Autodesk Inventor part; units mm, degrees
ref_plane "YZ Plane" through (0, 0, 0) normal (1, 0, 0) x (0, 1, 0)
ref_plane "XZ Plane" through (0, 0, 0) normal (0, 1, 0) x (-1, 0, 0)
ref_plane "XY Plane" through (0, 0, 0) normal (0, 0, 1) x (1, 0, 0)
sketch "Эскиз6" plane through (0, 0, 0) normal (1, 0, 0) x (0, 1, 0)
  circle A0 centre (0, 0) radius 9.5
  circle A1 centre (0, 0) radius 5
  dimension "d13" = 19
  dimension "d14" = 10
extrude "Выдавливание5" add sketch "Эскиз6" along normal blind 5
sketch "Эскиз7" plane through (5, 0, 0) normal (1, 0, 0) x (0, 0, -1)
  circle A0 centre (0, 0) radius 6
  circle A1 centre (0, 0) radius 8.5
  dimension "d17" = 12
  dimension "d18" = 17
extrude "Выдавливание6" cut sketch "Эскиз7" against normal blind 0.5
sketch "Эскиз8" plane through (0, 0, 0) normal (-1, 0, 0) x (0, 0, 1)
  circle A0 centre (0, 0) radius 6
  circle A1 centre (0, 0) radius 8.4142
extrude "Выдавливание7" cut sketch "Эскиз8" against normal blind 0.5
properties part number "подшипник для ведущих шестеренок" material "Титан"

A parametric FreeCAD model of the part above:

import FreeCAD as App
import Part
import Sketcher

V = App.Vector

doc = App.newDocument("Part")
body = doc.addObject("PartDesign::Body", "Body")

# Sketch on YZ plane
sketch1 = doc.addObject("Sketcher::SketchObject", "Sketch")
body.addObject(sketch1)
sketch1.AttachmentSupport = (doc.YZ_Plane, [""])
sketch1.MapMode = "FlatFace"
sketch1.addGeometry([
    Part.Circle(V(0, 0, 0), V(0, 0, 1), 10),
    Part.Circle(V(0, 0, 0), V(0, 0, 1), 5),
], False)
sketch1.addConstraint([
    Sketcher.Constraint("Coincident", 0, 3, -1, 1),
    Sketcher.Constraint("Coincident", 1, 3, -1, 1),
    Sketcher.Constraint("Diameter", 0, 19.0),
    Sketcher.Constraint("Diameter", 1, 10.0),
])
pad1 = doc.addObject("PartDesign::Pad", "Pad")
body.addObject(pad1)
pad1.Profile = sketch1
pad1.Length = 5

# Sketch on YZ plane
sketch2 = doc.addObject("Sketcher::SketchObject", "Sketch001")
body.addObject(sketch2)
sketch2.AttachmentSupport = (doc.YZ_Plane, [""])
sketch2.MapMode = "FlatFace"
sketch2.AttachmentOffset = App.Placement(V(0, 0, 5), App.Rotation())
sketch2.addGeometry([
    Part.Circle(V(0, 0, 0), V(0, 0, 1), 8),
    Part.Circle(V(0, 0, 0), V(0, 0, 1), 6),
], False)
sketch2.addConstraint([
    Sketcher.Constraint("Coincident", 0, 3, -1, 1),
    Sketcher.Constraint("Coincident", 1, 3, -1, 1),
    Sketcher.Constraint("Diameter", 0, 17.0),
    Sketcher.Constraint("Diameter", 1, 12.0),
])
pocket1 = doc.addObject("PartDesign::Pocket", "Pocket")
body.addObject(pocket1)
pocket1.Profile = sketch2
pocket1.Length = 0.5

# Sketch on YZ plane
sketch3 = doc.addObject("Sketcher::SketchObject", "Sketch002")
body.addObject(sketch3)
sketch3.AttachmentSupport = (doc.YZ_Plane, [""])
sketch3.MapMode = "FlatFace"
sketch3.addGeometry([
    Part.Circle(V(0, 0, 0), V(0, 0, 1), 8),
    Part.Circle(V(0, 0, 0), V(0, 0, 1), 6),
], False)
sketch3.addConstraint([
    Sketcher.Constraint("Coincident", 0, 3, -1, 1),
    Sketcher.Constraint("Coincident", 1, 3, -1, 1),
    Sketcher.Constraint("Diameter", 1, 12.0),
    Sketcher.Constraint("Diameter", 0, 16.8284),
])
pocket2 = doc.addObject("PartDesign::Pocket", "Pocket001")
body.addObject(pocket2)
pocket2.Profile = sketch3
pocket2.Length = 0.5
pocket2.Reversed = True

doc.recompute()
